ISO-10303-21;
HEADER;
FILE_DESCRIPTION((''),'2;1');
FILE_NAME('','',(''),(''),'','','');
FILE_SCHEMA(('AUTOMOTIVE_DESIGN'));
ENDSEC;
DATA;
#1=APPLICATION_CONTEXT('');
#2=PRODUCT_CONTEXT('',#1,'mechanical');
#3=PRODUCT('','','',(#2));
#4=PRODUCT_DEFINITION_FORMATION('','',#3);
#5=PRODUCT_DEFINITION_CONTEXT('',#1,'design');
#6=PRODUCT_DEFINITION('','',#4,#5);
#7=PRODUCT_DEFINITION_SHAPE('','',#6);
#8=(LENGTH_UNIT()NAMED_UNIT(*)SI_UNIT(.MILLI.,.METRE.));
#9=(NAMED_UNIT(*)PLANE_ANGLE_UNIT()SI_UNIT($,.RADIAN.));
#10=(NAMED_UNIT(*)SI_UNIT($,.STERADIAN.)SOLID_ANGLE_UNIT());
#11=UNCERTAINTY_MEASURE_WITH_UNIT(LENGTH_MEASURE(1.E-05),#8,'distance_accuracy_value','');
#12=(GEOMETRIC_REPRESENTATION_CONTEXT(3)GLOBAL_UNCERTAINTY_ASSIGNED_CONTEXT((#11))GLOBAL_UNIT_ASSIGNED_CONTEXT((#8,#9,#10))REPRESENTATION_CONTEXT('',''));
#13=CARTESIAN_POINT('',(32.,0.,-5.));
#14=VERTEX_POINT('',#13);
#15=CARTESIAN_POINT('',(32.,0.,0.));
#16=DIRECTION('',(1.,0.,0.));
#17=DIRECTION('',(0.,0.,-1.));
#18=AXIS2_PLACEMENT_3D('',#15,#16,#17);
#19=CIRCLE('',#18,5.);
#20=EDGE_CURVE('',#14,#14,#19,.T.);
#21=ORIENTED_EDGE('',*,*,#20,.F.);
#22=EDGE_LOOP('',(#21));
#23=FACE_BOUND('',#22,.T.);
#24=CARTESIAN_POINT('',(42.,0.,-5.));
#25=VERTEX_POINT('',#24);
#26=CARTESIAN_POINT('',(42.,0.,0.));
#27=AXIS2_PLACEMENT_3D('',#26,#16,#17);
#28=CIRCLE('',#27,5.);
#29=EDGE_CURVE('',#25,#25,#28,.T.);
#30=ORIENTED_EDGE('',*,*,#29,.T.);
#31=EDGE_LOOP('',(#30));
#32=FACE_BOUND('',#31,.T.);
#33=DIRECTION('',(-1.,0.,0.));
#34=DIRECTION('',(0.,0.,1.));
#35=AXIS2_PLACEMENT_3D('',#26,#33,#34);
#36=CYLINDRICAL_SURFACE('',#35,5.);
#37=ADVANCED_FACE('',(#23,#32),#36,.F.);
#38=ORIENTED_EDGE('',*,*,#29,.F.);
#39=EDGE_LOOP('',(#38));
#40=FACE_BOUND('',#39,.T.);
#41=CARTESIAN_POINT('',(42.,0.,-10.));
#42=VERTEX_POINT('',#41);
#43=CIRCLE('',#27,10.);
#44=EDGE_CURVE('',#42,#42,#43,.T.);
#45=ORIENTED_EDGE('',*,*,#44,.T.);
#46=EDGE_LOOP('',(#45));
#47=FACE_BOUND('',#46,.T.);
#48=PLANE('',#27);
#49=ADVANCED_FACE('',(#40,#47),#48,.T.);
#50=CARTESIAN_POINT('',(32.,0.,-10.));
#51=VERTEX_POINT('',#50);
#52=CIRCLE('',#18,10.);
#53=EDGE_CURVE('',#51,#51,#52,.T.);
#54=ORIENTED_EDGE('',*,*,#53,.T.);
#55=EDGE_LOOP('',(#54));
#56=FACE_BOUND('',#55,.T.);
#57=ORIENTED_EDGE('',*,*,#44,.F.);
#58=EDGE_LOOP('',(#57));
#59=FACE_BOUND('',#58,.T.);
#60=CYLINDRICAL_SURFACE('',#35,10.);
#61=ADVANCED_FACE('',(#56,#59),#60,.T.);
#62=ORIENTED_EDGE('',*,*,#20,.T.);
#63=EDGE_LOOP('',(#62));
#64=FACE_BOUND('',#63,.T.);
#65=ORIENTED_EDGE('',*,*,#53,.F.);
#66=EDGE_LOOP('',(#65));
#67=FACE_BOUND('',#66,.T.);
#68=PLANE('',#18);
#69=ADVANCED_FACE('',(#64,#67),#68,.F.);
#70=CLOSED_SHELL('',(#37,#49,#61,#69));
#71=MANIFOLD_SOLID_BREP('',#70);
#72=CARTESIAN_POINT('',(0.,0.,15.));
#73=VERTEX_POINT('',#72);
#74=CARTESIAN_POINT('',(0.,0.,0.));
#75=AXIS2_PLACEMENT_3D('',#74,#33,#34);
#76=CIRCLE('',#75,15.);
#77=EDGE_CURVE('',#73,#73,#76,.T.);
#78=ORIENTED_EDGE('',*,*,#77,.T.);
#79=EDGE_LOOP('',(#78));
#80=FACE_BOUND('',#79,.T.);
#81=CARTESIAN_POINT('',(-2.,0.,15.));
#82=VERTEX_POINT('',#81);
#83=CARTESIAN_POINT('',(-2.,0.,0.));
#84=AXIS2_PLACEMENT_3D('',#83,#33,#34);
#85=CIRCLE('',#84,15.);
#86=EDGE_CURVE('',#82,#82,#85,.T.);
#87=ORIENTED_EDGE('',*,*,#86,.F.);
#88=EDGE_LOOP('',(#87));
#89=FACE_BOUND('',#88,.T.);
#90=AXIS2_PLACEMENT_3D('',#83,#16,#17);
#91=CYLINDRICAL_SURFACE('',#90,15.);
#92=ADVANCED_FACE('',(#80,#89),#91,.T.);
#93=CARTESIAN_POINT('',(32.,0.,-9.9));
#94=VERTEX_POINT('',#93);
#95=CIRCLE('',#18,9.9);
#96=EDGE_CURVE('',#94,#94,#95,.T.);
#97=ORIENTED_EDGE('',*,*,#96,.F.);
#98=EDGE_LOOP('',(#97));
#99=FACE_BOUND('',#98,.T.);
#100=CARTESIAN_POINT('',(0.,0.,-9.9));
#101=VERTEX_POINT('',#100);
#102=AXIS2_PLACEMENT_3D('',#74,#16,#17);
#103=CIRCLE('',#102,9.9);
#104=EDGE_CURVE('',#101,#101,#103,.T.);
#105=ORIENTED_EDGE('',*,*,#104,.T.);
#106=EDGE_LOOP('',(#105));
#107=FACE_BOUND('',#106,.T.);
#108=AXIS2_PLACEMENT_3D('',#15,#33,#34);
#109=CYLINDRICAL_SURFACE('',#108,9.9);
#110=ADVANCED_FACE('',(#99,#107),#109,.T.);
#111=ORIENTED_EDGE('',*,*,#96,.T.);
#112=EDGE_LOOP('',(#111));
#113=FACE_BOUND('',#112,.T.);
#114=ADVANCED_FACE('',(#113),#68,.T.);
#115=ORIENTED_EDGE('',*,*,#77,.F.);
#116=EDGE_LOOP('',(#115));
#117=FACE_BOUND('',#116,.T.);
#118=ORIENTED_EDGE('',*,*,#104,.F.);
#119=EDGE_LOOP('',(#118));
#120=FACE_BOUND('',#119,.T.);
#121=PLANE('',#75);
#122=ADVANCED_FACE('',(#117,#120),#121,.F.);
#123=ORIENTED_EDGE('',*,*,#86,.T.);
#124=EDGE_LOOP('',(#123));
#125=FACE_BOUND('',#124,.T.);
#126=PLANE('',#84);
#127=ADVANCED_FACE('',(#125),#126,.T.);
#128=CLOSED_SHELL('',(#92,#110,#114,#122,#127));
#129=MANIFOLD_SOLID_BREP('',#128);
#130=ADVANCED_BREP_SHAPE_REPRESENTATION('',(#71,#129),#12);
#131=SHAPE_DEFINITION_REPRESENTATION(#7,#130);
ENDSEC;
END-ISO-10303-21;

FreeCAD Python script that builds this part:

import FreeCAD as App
import Part
import Sketcher

V = App.Vector
Q = App.Units.Quantity

doc = App.newDocument("Part")
body = doc.addObject("PartDesign::Body", "Body")

sketch1 = body.newObject("Sketcher::SketchObject", "Sketch")
sketch1.AttachmentSupport = (doc.getObject("YZ_Plane"), [""])
sketch1.MapMode = "FlatFace"
sketch1.addGeometry(Part.Circle(V(0, 0, 0), V(0, 0, 1), 9.9), False)
sketch1.addConstraint([
    Sketcher.Constraint("Coincident", 0, 3, -1, 1),
    Sketcher.Constraint("Diameter", 0, Q("19.8 mm")),
])
pad1 = body.newObject("PartDesign::Pad", "Pad")
pad1.Profile = sketch1
pad1.Length = 32

sketch2 = body.newObject("Sketcher::SketchObject", "Sketch001")
sketch2.AttachmentSupport = (doc.getObject("YZ_Plane"), [""])
sketch2.MapMode = "FlatFace"
sketch2.addGeometry(Part.Circle(V(0, 0, 0), V(0, 0, 1), 15), False)
sketch2.addConstraint([
    Sketcher.Constraint("Coincident", 0, 3, -1, 1),
    Sketcher.Constraint("Diameter", 0, Q("30 mm")),
])
pad2 = body.newObject("PartDesign::Pad", "Pad001")
pad2.Profile = sketch2
pad2.Length = 2
pad2.Reversed = True
body2 = doc.addObject("PartDesign::Body", "Body001")

sketch3 = body2.newObject("Sketcher::SketchObject", "Sketch002")
sketch3.AttachmentSupport = (doc.getObject("YZ_Plane001"), [""])
sketch3.MapMode = "FlatFace"
sketch3.AttachmentOffset = App.Placement(V(0, 0, 32), App.Rotation())
sketch3.addGeometry([
    Part.Circle(V(0, 0, 0), V(0, 0, 1), 10),
    Part.Circle(V(0, 0, 0), V(0, 0, 1), 5),
], False)
sketch3.addConstraint([
    Sketcher.Constraint("Coincident", 0, 3, -1, 1),
    Sketcher.Constraint("Coincident", 1, 3, -1, 1),
    Sketcher.Constraint("Diameter", 0, Q("20 mm")),
    Sketcher.Constraint("Diameter", 1, Q("10 mm")),
])
pad3 = body2.newObject("PartDesign::Pad", "Pad002")
pad3.Profile = sketch3
pad3.Length = 10

doc.recompute()
